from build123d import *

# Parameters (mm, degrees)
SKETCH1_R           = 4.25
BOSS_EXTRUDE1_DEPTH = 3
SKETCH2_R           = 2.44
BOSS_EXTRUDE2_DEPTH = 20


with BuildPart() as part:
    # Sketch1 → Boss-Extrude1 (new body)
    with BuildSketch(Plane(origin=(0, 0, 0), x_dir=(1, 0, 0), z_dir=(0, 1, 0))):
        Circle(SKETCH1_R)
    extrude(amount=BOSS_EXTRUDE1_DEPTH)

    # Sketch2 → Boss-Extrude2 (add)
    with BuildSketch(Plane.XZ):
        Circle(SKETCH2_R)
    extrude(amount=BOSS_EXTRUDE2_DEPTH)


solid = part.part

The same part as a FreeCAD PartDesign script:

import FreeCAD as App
import Part
import Sketcher

V = App.Vector

doc = App.newDocument("Part")
params = doc.addObject("Spreadsheet::Sheet", "Params")
for row, (alias, value) in enumerate([
    ("sketch1_diameter", "8.5 mm"),
    ("pad1_length", "3 mm"),
    ("sketch2_diameter", "4.88 mm"),
    ("pad2_length", "20 mm"),
], start=1):
    params.set(f"A{row}", alias)
    params.set(f"B{row}", "=" + value)
    params.setAlias(f"B{row}", alias)

body = doc.addObject("PartDesign::Body", "Body")

sketch1 = body.newObject("Sketcher::SketchObject", "Sketch")
sketch1.AttachmentSupport = (doc.getObject("XZ_Plane"), [""])
sketch1.MapMode = "FlatFace"
sketch1.addGeometry(Part.Circle(V(0, 0, 0), V(0, 0, 1), 4.2), False)
sketch1.addConstraint([
    Sketcher.Constraint("Coincident", 0, 3, -1, 1),
    Sketcher.Constraint("Diameter", 0, 8.5),
])
sketch1.setExpression("Constraints[1]", "Params.sketch1_diameter")
pad1 = body.newObject("PartDesign::Pad", "Pad")
pad1.Profile = sketch1
pad1.setExpression("Length", "Params.pad1_length")
pad1.Reversed = True

sketch2 = body.newObject("Sketcher::SketchObject", "Sketch001")
sketch2.AttachmentSupport = (doc.getObject("XZ_Plane"), [""])
sketch2.MapMode = "FlatFace"
sketch2.addGeometry(Part.Circle(V(0, 0, 0), V(0, 0, 1), 2.4), False)
sketch2.addConstraint([
    Sketcher.Constraint("Coincident", 0, 3, -1, 1),
    Sketcher.Constraint("Diameter", 0, 4.88),
])
sketch2.setExpression("Constraints[1]", "Params.sketch2_diameter")
pad2 = body.newObject("PartDesign::Pad", "Pad001")
pad2.Profile = sketch2
pad2.setExpression("Length", "Params.pad2_length")

doc.recompute()
